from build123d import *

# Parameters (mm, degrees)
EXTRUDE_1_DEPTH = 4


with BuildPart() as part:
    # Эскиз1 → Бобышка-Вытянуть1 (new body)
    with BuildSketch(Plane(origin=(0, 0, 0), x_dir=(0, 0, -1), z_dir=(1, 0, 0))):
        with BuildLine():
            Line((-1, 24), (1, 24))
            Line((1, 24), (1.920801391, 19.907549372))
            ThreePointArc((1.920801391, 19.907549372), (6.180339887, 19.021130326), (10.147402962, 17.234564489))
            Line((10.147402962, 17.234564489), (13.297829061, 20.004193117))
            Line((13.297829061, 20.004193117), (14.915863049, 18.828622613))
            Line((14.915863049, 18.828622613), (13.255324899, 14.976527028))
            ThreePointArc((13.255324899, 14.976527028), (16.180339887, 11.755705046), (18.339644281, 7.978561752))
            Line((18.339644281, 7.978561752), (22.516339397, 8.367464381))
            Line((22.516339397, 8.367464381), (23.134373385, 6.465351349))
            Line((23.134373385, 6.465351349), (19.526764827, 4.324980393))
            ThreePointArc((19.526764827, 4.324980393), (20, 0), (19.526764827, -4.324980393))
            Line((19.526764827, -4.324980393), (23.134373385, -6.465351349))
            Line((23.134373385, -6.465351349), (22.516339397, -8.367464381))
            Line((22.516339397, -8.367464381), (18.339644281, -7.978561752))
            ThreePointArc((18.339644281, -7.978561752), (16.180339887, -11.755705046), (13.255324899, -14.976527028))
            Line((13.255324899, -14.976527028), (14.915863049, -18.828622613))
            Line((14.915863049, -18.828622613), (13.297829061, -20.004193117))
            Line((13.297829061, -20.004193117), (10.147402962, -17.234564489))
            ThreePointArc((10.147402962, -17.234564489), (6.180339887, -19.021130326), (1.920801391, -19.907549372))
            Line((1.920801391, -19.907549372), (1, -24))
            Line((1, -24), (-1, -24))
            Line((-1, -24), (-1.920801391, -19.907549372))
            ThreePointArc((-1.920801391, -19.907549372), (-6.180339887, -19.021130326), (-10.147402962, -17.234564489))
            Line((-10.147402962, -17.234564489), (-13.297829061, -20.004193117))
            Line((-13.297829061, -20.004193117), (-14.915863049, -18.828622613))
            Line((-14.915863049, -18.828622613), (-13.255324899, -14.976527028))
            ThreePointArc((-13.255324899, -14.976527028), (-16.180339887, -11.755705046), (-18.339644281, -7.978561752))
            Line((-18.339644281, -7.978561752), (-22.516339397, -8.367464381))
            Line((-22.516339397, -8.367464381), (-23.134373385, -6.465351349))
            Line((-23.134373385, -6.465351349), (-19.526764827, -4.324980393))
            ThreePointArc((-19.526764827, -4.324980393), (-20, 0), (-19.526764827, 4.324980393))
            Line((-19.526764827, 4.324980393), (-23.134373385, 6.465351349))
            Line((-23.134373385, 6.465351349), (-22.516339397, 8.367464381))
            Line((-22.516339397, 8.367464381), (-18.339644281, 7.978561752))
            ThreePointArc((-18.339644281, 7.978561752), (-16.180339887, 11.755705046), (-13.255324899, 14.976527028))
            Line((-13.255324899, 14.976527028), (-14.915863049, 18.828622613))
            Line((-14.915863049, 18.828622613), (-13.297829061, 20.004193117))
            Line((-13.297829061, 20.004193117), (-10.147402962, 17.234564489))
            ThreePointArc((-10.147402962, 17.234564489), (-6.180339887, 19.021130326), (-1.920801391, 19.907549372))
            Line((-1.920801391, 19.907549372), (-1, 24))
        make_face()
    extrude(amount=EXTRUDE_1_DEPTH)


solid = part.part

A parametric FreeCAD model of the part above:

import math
import FreeCAD as App
import Part
import Sketcher
Q = App.Units.Quantity

doc = App.newDocument("Part")
body = doc.addObject("PartDesign::Body", "Body")

# Sketch on YZ plane
sketch1 = doc.addObject("Sketcher::SketchObject", "Sketch")
body.addObject(sketch1)
sketch1.AttachmentSupport = (doc.YZ_Plane, [""])
sketch1.MapMode = "FlatFace"
sketch1.addGeometry([
    Part.LineSegment(App.Vector(24, -1, 0), App.Vector(24, 1, 0)),  # 0
    Part.LineSegment(App.Vector(24, 1, 0), App.Vector(19.9, 1.9, 0)),  # 1
    Part.ArcOfCircle(Part.Circle(App.Vector(0, 0, 0), App.Vector(0, 0, 1), 20), math.radians(6), math.radians(30)),  # 2
    Part.LineSegment(App.Vector(17.2, 10.1, 0), App.Vector(20, 13.3, 0)),  # 3
    Part.LineSegment(App.Vector(20, 13.3, 0), App.Vector(18.8, 14.9, 0)),  # 4
    Part.LineSegment(App.Vector(18.8, 14.9, 0), App.Vector(15, 13.3, 0)),  # 5
    Part.ArcOfCircle(Part.Circle(App.Vector(0, 0, 0), App.Vector(0, 0, 1), 20), math.radians(42), math.radians(66)),  # 6
    Part.LineSegment(App.Vector(8, 18.3, 0), App.Vector(8.4, 22.5, 0)),  # 7
    Part.LineSegment(App.Vector(8.4, 22.5, 0), App.Vector(6.5, 23.1, 0)),  # 8
    Part.LineSegment(App.Vector(6.5, 23.1, 0), App.Vector(4.3, 19.5, 0)),  # 9
    Part.ArcOfCircle(Part.Circle(App.Vector(0, 0, 0), App.Vector(0, 0, 1), 20), math.radians(78), math.radians(102)),  # 10
    Part.LineSegment(App.Vector(-4.3, 19.5, 0), App.Vector(-6.5, 23.1, 0)),  # 11
    Part.LineSegment(App.Vector(-6.5, 23.1, 0), App.Vector(-8.4, 22.5, 0)),  # 12
    Part.LineSegment(App.Vector(-8.4, 22.5, 0), App.Vector(-8, 18.3, 0)),  # 13
    Part.ArcOfCircle(Part.Circle(App.Vector(0, 0, 0), App.Vector(0, 0, 1), 20), math.radians(114), math.radians(138)),  # 14
    Part.LineSegment(App.Vector(-15, 13.3, 0), App.Vector(-18.8, 14.9, 0)),  # 15
    Part.LineSegment(App.Vector(-18.8, 14.9, 0), App.Vector(-20, 13.3, 0)),  # 16
    Part.LineSegment(App.Vector(-20, 13.3, 0), App.Vector(-17.2, 10.1, 0)),  # 17
    Part.ArcOfCircle(Part.Circle(App.Vector(0, 0, 0), App.Vector(0, 0, 1), 20), math.radians(150), math.radians(174)),  # 18
    Part.LineSegment(App.Vector(-19.9, 1.9, 0), App.Vector(-24, 1, 0)),  # 19
    Part.LineSegment(App.Vector(-24, 1, 0), App.Vector(-24, -1, 0)),  # 20
    Part.LineSegment(App.Vector(-24, -1, 0), App.Vector(-19.9, -1.9, 0)),  # 21
    Part.ArcOfCircle(Part.Circle(App.Vector(0, 0, 0), App.Vector(0, 0, 1), 20), math.radians(-174), math.radians(-150)),  # 22
    Part.LineSegment(App.Vector(-17.2, -10.1, 0), App.Vector(-20, -13.3, 0)),  # 23
    Part.LineSegment(App.Vector(-20, -13.3, 0), App.Vector(-18.8, -14.9, 0)),  # 24
    Part.LineSegment(App.Vector(-18.8, -14.9, 0), App.Vector(-15, -13.3, 0)),  # 25
    Part.ArcOfCircle(Part.Circle(App.Vector(0, 0, 0), App.Vector(0, 0, 1), 20), math.radians(-138), math.radians(-114)),  # 26
    Part.LineSegment(App.Vector(-8, -18.3, 0), App.Vector(-8.4, -22.5, 0)),  # 27
    Part.LineSegment(App.Vector(-8.4, -22.5, 0), App.Vector(-6.5, -23.1, 0)),  # 28
    Part.LineSegment(App.Vector(-6.5, -23.1, 0), App.Vector(-4.3, -19.5, 0)),  # 29
    Part.ArcOfCircle(Part.Circle(App.Vector(0, 0, 0), App.Vector(0, 0, 1), 20), math.radians(-102), math.radians(-78)),  # 30
    Part.LineSegment(App.Vector(4.3, -19.5, 0), App.Vector(6.5, -23.1, 0)),  # 31
    Part.LineSegment(App.Vector(6.5, -23.1, 0), App.Vector(8.4, -22.5, 0)),  # 32
    Part.LineSegment(App.Vector(8.4, -22.5, 0), App.Vector(8, -18.3, 0)),  # 33
    Part.ArcOfCircle(Part.Circle(App.Vector(0, 0, 0), App.Vector(0, 0, 1), 20), math.radians(-66), math.radians(-42)),  # 34
    Part.LineSegment(App.Vector(15, -13.3, 0), App.Vector(18.8, -14.9, 0)),  # 35
    Part.LineSegment(App.Vector(18.8, -14.9, 0), App.Vector(20, -13.3, 0)),  # 36
    Part.LineSegment(App.Vector(20, -13.3, 0), App.Vector(17.2, -10.1, 0)),  # 37
    Part.ArcOfCircle(Part.Circle(App.Vector(0, 0, 0), App.Vector(0, 0, 1), 20), math.radians(-30), math.radians(-6)),  # 38
    Part.LineSegment(App.Vector(19.9, -1.9, 0), App.Vector(24, -1, 0)),  # 39
], False)
sketch1.addConstraint([
    Sketcher.Constraint("Coincident", 0, 2, 1, 1),
    Sketcher.Constraint("Coincident", 1, 2, 2, 1),
    Sketcher.Constraint("Coincident", 2, 2, 3, 1),
    Sketcher.Constraint("Coincident", 3, 2, 4, 1),
    Sketcher.Constraint("Coincident", 4, 2, 5, 1),
    Sketcher.Constraint("Coincident", 5, 2, 6, 1),
    Sketcher.Constraint("Coincident", 6, 2, 7, 1),
    Sketcher.Constraint("Coincident", 7, 2, 8, 1),
    Sketcher.Constraint("Coincident", 8, 2, 9, 1),
    Sketcher.Constraint("Coincident", 9, 2, 10, 1),
    Sketcher.Constraint("Coincident", 10, 2, 11, 1),
    Sketcher.Constraint("Coincident", 11, 2, 12, 1),
    Sketcher.Constraint("Coincident", 12, 2, 13, 1),
    Sketcher.Constraint("Coincident", 13, 2, 14, 1),
    Sketcher.Constraint("Coincident", 14, 2, 15, 1),
    Sketcher.Constraint("Coincident", 15, 2, 16, 1),
    Sketcher.Constraint("Coincident", 16, 2, 17, 1),
    Sketcher.Constraint("Coincident", 17, 2, 18, 1),
    Sketcher.Constraint("Coincident", 18, 2, 19, 1),
    Sketcher.Constraint("Coincident", 19, 2, 20, 1),
    Sketcher.Constraint("Coincident", 20, 2, 21, 1),
    Sketcher.Constraint("Coincident", 21, 2, 22, 1),
    Sketcher.Constraint("Coincident", 22, 2, 23, 1),
    Sketcher.Constraint("Coincident", 23, 2, 24, 1),
    Sketcher.Constraint("Coincident", 24, 2, 25, 1),
    Sketcher.Constraint("Coincident", 25, 2, 26, 1),
    Sketcher.Constraint("Coincident", 26, 2, 27, 1),
    Sketcher.Constraint("Coincident", 27, 2, 28, 1),
    Sketcher.Constraint("Coincident", 28, 2, 29, 1),
    Sketcher.Constraint("Coincident", 29, 2, 30, 1),
    Sketcher.Constraint("Coincident", 30, 2, 31, 1),
    Sketcher.Constraint("Coincident", 31, 2, 32, 1),
    Sketcher.Constraint("Coincident", 32, 2, 33, 1),
    Sketcher.Constraint("Coincident", 33, 2, 34, 1),
    Sketcher.Constraint("Coincident", 34, 2, 35, 1),
    Sketcher.Constraint("Coincident", 35, 2, 36, 1),
    Sketcher.Constraint("Coincident", 36, 2, 37, 1),
    Sketcher.Constraint("Coincident", 37, 2, 38, 1),
    Sketcher.Constraint("Coincident", 38, 2, 39, 1),
    Sketcher.Constraint("Coincident", 39, 2, 0, 1),
    Sketcher.Constraint("Vertical", 0),
    Sketcher.Constraint("Vertical", 20),
    Sketcher.Constraint("Coincident", 2, 3, -1, 1),
    Sketcher.Constraint("Coincident", 6, 3, -1, 1),
    Sketcher.Constraint("Coincident", 10, 3, -1, 1),
    Sketcher.Constraint("Coincident", 14, 3, -1, 1),
    Sketcher.Constraint("Coincident", 18, 3, -1, 1),
    Sketcher.Constraint("Coincident", 22, 3, -1, 1),
    Sketcher.Constraint("Coincident", 26, 3, -1, 1),
    Sketcher.Constraint("Coincident", 30, 3, -1, 1),
    Sketcher.Constraint("Coincident", 34, 3, -1, 1),
    Sketcher.Constraint("Coincident", 38, 3, -1, 1),
    Sketcher.Constraint("Equal", 2, 6),
    Sketcher.Constraint("Equal", 6, 10),
    Sketcher.Constraint("Equal", 10, 14),
    Sketcher.Constraint("Equal", 14, 18),
    Sketcher.Constraint("Equal", 18, 22),
    Sketcher.Constraint("Equal", 22, 26),
    Sketcher.Constraint("Equal", 26, 30),
    Sketcher.Constraint("Equal", 30, 34),
    Sketcher.Constraint("Equal", 34, 38),
    Sketcher.Constraint("Symmetric", 0, 2, 20, 2, -1, 1),
    Sketcher.Constraint("Symmetric", 3, 2, 23, 2, -1, 1),
    Sketcher.Constraint("Symmetric", 4, 2, 24, 2, -1, 1),
    Sketcher.Constraint("Symmetric", 7, 2, 27, 2, -1, 1),
    Sketcher.Constraint("Symmetric", 8, 2, 28, 2, -1, 1),
    Sketcher.Constraint("Symmetric", 11, 2, 31, 2, -1, 1),
    Sketcher.Constraint("Symmetric", 12, 2, 32, 2, -1, 1),
    Sketcher.Constraint("Symmetric", 15, 2, 35, 2, -1, 1),
    Sketcher.Constraint("Symmetric", 16, 2, 36, 2, -1, 1),
    Sketcher.Constraint("Symmetric", 8, 2, 11, 2, -2),
    Sketcher.Constraint("Symmetric", 7, 2, 12, 2, -2),
    Sketcher.Constraint("Symmetric", 4, 2, 15, 2, -2),
    Sketcher.Constraint("Symmetric", 3, 2, 16, 2, -2),
    Sketcher.Constraint("Parallel", 1, 21),
    Sketcher.Constraint("Parallel", 3, 23),
    Sketcher.Constraint("Parallel", 5, 25),
    Sketcher.Constraint("Parallel", 7, 27),
    Sketcher.Constraint("Parallel", 9, 29),
    Sketcher.Constraint("Parallel", 11, 31),
    Sketcher.Constraint("Parallel", 13, 33),
    Sketcher.Constraint("Parallel", 15, 35),
    Sketcher.Constraint("Parallel", 17, 37),
    Sketcher.Constraint("Parallel", 19, 39),
    Sketcher.Constraint("Horizontal", 9, 2, 10, 2),
    Sketcher.Constraint("Horizontal", 6, 2, 13, 2),
    Sketcher.Constraint("Horizontal", 5, 2, 14, 2),
    Sketcher.Constraint("Horizontal", 2, 2, 17, 2),
    Sketcher.Constraint("Horizontal", 1, 2, 18, 2),
    Sketcher.Constraint("Horizontal", 0, 2, 19, 2),
    Sketcher.Constraint("Horizontal", 21, 2, 38, 2),
    Sketcher.Constraint("Equal", 1, 3),
    Sketcher.Constraint("Equal", 3, 5),
    Sketcher.Constraint("Equal", 5, 7),
    Sketcher.Constraint("Equal", 4, 8),
    Sketcher.Constraint("Equal", 7, 9),
    Sketcher.Constraint("Radius", 2, Q("20 mm")),
    Sketcher.Constraint("DistanceY", 0, 1, 0, 2, Q("2 mm")),
    Sketcher.Constraint("Angle", 4, Q("126 deg")),
    Sketcher.Constraint("Angle", 8, Q("162 deg")),
    Sketcher.Constraint("Distance", 4, Q("2 mm")),
    Sketcher.Constraint("DistanceX", -1, 1, 0, 2, Q("24 mm")),
    Sketcher.Constraint("DistanceY", -1, 1, 1, 2, Q("1.920801 mm")),
    Sketcher.Constraint("DistanceY", 1, 2, 2, 2, Q("8.226602 mm")),
    Sketcher.Constraint("DistanceX", 7, 2, 2, 2, Q("8.8671 mm")),
    Sketcher.Constraint("DistanceY", 4, 2, 9, 2, Q("4.610902 mm")),
    Sketcher.Constraint("DistanceY", -1, 1, 3, 2, Q("13.297829 mm")),
])
pad1 = doc.addObject("PartDesign::Pad", "Pad")
body.addObject(pad1)
pad1.Profile = sketch1
pad1.Length = 4

doc.recompute()
